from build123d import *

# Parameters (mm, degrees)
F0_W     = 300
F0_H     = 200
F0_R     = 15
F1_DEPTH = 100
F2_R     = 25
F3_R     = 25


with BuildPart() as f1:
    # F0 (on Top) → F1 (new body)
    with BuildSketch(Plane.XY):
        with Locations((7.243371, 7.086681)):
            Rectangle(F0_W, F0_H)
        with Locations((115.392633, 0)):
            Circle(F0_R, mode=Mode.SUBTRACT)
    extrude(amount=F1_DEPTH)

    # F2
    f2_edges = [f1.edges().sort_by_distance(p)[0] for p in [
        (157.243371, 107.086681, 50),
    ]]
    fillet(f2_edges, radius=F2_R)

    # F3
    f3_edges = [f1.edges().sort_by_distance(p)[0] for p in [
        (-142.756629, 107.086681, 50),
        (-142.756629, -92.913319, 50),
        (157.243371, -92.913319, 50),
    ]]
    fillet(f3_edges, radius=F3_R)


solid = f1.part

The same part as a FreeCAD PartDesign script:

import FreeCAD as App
import Part
import Sketcher

V = App.Vector


def edges_at(feature, points):
    """Names of the edges that pass closest to the given points."""
    edges = feature.Shape.Edges
    near = lambda p: min(range(len(edges)), key=lambda i: edges[i].distToShape(Part.Vertex(*p))[0])
    return sorted({f"Edge{near(p) + 1}" for p in points})


def add_polygon(sketch, points):
    """Adds a closed chain of lines whose ends are joined by coincident constraints."""
    first, n = sketch.GeometryCount, len(points)
    for a, b in zip(points, points[1:] + points[:1]):
        sketch.addGeometry(Part.LineSegment(App.Vector(*a, 0), App.Vector(*b, 0)), False)
    for i in range(n):
        sketch.addConstraint(Sketcher.Constraint("Coincident", first + i, 2, first + (i + 1) % n, 1))

doc = App.newDocument("Part")
body = doc.addObject("PartDesign::Body", "Body")

sketch1 = body.newObject("Sketcher::SketchObject", "Sketch")
sketch1.AttachmentSupport = (doc.getObject("XY_Plane"), [""])
sketch1.MapMode = "FlatFace"
add_polygon(sketch1, [(-143, 107), (-143, -93), (157, -93), (157, 107)])
sketch1.addGeometry(Part.Circle(V(115, 0, 0), V(0, 0, 1), 15), False)
sketch1.addConstraint(Sketcher.Constraint("Vertical", 0))
sketch1.addConstraint(Sketcher.Constraint("Horizontal", 1))
sketch1.addConstraint(Sketcher.Constraint("Vertical", 2))
sketch1.addConstraint(Sketcher.Constraint("Horizontal", 3))
sketch1.addConstraint(Sketcher.Constraint("PointOnObject", 4, 3, -1))
sketch1.addConstraint(Sketcher.Constraint("Diameter", 4, 30.0))
sketch1.addConstraint(Sketcher.Constraint("DistanceX", 1, 1, 1, 2, 300.0))
sketch1.addConstraint(Sketcher.Constraint("DistanceY", 0, 2, 0, 1, 200.0))
sketch1.addConstraint(Sketcher.Constraint("DistanceX", 0, 2, -1, 1, 142.756629))
sketch1.addConstraint(Sketcher.Constraint("DistanceY", 0, 2, -1, 1, 92.913319))
sketch1.addConstraint(Sketcher.Constraint("DistanceX", 0, 2, 4, 3, 258.149262))
pad1 = body.newObject("PartDesign::Pad", "Pad")
pad1.Profile = sketch1
pad1.Length = 100
doc.recompute()

fillet = body.newObject("PartDesign::Fillet", "Fillet")
fillet.Base = (pad1, edges_at(pad1, [(157.243, 107.087, 50)]))
fillet.Radius = 25
doc.recompute()

fillet2 = body.newObject("PartDesign::Fillet", "Fillet001")
fillet2.Base = (fillet, edges_at(fillet, [(-142.757, 107.087, 50), (-142.757, -92.913, 50), (157.243, -92.913, 50)]))
fillet2.Radius = 25

doc.recompute()
